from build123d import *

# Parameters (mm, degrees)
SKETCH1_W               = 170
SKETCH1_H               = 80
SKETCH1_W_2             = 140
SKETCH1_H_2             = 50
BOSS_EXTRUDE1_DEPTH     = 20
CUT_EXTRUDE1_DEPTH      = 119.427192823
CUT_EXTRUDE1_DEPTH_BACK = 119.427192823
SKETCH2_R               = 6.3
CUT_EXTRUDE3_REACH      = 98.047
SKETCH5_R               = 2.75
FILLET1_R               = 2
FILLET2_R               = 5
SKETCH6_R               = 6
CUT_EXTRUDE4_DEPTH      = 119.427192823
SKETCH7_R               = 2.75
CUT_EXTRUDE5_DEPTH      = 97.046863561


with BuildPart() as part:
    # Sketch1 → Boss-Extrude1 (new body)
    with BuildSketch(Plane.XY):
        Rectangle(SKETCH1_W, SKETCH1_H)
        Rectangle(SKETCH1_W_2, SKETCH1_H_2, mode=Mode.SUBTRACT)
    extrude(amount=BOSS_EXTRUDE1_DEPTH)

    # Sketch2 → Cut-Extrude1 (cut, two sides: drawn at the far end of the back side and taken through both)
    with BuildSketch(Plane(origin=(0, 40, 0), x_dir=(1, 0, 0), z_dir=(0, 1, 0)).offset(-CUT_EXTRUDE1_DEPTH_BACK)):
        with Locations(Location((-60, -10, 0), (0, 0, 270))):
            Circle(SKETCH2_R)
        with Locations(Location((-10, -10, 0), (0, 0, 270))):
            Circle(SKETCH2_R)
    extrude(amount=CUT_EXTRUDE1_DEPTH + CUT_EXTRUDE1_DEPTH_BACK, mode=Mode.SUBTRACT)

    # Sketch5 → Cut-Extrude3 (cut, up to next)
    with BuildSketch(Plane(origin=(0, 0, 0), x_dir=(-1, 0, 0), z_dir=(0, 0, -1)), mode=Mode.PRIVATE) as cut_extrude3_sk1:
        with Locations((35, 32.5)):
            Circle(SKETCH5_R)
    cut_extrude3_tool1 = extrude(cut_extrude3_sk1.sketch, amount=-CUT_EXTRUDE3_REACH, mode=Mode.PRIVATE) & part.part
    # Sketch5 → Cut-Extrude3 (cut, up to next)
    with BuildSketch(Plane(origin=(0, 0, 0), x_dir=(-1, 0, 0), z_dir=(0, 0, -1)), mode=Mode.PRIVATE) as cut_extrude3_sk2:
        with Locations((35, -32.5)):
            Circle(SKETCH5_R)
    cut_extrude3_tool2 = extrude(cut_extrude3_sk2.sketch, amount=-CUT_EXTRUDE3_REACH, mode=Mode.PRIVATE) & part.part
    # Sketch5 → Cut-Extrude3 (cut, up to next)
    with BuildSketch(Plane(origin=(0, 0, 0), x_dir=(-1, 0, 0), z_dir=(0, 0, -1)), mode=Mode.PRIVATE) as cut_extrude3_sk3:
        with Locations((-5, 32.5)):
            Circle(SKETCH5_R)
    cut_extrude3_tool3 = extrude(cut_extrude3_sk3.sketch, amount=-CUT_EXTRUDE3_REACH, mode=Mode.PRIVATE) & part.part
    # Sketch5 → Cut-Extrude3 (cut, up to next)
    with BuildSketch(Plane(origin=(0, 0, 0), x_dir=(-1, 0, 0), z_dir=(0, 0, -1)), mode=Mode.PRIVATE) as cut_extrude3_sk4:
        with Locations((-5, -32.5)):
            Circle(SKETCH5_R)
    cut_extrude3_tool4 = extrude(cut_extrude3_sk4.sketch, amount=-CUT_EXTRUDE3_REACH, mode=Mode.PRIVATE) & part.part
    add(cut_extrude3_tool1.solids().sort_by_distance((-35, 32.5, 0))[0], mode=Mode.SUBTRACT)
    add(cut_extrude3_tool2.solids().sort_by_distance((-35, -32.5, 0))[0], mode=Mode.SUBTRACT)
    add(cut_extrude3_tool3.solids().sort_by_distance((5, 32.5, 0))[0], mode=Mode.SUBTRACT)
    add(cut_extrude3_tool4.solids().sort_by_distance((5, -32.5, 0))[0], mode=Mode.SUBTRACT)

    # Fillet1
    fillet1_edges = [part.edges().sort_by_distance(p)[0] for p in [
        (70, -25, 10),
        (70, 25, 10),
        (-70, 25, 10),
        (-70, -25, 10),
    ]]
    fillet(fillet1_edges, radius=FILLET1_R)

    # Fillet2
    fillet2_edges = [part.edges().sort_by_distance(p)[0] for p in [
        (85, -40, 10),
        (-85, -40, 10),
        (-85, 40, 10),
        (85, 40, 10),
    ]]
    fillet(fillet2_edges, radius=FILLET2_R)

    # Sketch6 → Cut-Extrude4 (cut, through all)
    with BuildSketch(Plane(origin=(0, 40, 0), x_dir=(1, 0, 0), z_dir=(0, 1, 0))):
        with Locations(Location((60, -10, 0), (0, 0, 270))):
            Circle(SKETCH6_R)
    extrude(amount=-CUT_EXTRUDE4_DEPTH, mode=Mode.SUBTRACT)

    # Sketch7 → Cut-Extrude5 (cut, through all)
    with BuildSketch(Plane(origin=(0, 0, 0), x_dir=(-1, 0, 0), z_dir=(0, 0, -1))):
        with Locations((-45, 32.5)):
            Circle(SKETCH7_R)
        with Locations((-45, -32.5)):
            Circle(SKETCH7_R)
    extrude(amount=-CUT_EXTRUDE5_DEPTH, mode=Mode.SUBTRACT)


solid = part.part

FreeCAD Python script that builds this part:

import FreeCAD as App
import Part
import Sketcher
Q = App.Units.Quantity


def edges_at(feature, points):
    """Names of the edges that pass closest to the given points."""
    edges = feature.Shape.Edges
    near = lambda p: min(range(len(edges)), key=lambda i: edges[i].distToShape(Part.Vertex(*p))[0])
    return sorted({f"Edge{near(p) + 1}" for p in points})

doc = App.newDocument("Part")
params = doc.addObject("Spreadsheet::Sheet", "Params")
for row, (alias, value) in enumerate([
    ("sketch1_width", "170 mm"),
    ("sketch1_width2", "140 mm"),
    ("sketch1_height", "80 mm"),
    ("sketch1_height2", "50 mm"),
    ("pad1_length", "20 mm"),
    ("sketch2_diameter", "12.6 mm"),
    ("sketch3_diameter", "5.5 mm"),
    ("sketch4_diameter", "5.5 mm"),
    ("sketch5_diameter", "5.5 mm"),
    ("sketch6_diameter", "5.5 mm"),
    ("fillet_radius", "2 mm"),
    ("fillet2_radius", "5 mm"),
    ("sketch7_diameter", "12 mm"),
    ("sketch8_diameter", "5.5 mm"),
], start=1):
    params.set(f"A{row}", alias)
    params.set(f"B{row}", "=" + value)
    params.setAlias(f"B{row}", alias)

body = doc.addObject("PartDesign::Body", "Body")

sketch1 = body.newObject("Sketcher::SketchObject", "Sketch")
sketch1.AttachmentSupport = (doc.getObject("XY_Plane"), [""])
sketch1.MapMode = "FlatFace"
sketch1.addGeometry([
    Part.LineSegment(App.Vector(-85, 40, 0), App.Vector(-85, -40, 0)),
    Part.LineSegment(App.Vector(-85, -40, 0), App.Vector(85, -40, 0)),
    Part.LineSegment(App.Vector(85, -40, 0), App.Vector(85, 40, 0)),
    Part.LineSegment(App.Vector(85, 40, 0), App.Vector(-85, 40, 0)),
    Part.LineSegment(App.Vector(70, -25, 0), App.Vector(-70, -25, 0)),
    Part.LineSegment(App.Vector(-70, -25, 0), App.Vector(-70, 25, 0)),
    Part.LineSegment(App.Vector(-70, 25, 0), App.Vector(70, 25, 0)),
    Part.LineSegment(App.Vector(70, 25, 0), App.Vector(70, -25, 0)),
], False)
sketch1.addConstraint([
    Sketcher.Constraint("Coincident", 0, 2, 1, 1),
    Sketcher.Constraint("Coincident", 1, 2, 2, 1),
    Sketcher.Constraint("Coincident", 2, 2, 3, 1),
    Sketcher.Constraint("Coincident", 3, 2, 0, 1),
    Sketcher.Constraint("Coincident", 4, 2, 5, 1),
    Sketcher.Constraint("Coincident", 5, 2, 6, 1),
    Sketcher.Constraint("Coincident", 6, 2, 7, 1),
    Sketcher.Constraint("Coincident", 7, 2, 4, 1),
    Sketcher.Constraint("Vertical", 0),
    Sketcher.Constraint("Horizontal", 1),
    Sketcher.Constraint("Vertical", 2),
    Sketcher.Constraint("Horizontal", 3),
    Sketcher.Constraint("Horizontal", 4),
    Sketcher.Constraint("Vertical", 5),
    Sketcher.Constraint("Horizontal", 6),
    Sketcher.Constraint("Vertical", 7),
    Sketcher.Constraint("Symmetric", 0, 2, 2, 2, -1, 1),
    Sketcher.Constraint("Symmetric", 4, 2, 6, 2, -1, 1),
    Sketcher.Constraint("DistanceX", 1, 1, 1, 2, Q("170 mm")),
    Sketcher.Constraint("DistanceX", 4, 2, 4, 1, Q("140 mm")),
    Sketcher.Constraint("DistanceY", 0, 2, 0, 1, Q("80 mm")),
    Sketcher.Constraint("DistanceY", 5, 1, 5, 2, Q("50 mm")),
])
sketch1.setExpression("Constraints[18]", "Params.sketch1_width")
sketch1.setExpression("Constraints[19]", "Params.sketch1_width2")
sketch1.setExpression("Constraints[20]", "Params.sketch1_height")
sketch1.setExpression("Constraints[21]", "Params.sketch1_height2")
pad1 = body.newObject("PartDesign::Pad", "Pad")
pad1.Profile = sketch1
pad1.setExpression("Length", "Params.pad1_length")

sketch2 = body.newObject("Sketcher::SketchObject", "Sketch001")
sketch2.AttachmentSupport = (doc.getObject("XZ_Plane"), [""])
sketch2.MapMode = "FlatFace"
sketch2.AttachmentOffset = App.Placement(App.Vector(0, 0, -40), App.Rotation())
sketch2.addGeometry([
    Part.Circle(App.Vector(-60, 10, 0), App.Vector(0, 0, 1), 6),
    Part.Circle(App.Vector(-10, 10, 0), App.Vector(0, 0, 1), 6),
], False)
sketch2.addConstraint([
    Sketcher.Constraint("Equal", 0, 1),
    Sketcher.Constraint("Horizontal", 0, 3, 1, 3),
    Sketcher.Constraint("Diameter", 0, Q("12.6 mm")),
    Sketcher.Constraint("DistanceX", 0, 3, -1, 1, Q("60 mm")),
    Sketcher.Constraint("DistanceY", -1, 1, 0, 3, Q("10 mm")),
    Sketcher.Constraint("DistanceX", 1, 3, -1, 1, Q("10 mm")),
])
sketch2.setExpression("Constraints[2]", "Params.sketch2_diameter")
pocket1 = body.newObject("PartDesign::Pocket", "Pocket")
pocket1.Profile = sketch2
pocket1.Type = "ThroughAll"
pocket1.Midplane = True

sketch3 = body.newObject("Sketcher::SketchObject", "Sketch002")
sketch3.AttachmentSupport = (doc.getObject("XY_Plane"), [""])
sketch3.MapMode = "FlatFace"
sketch3.addGeometry(Part.Circle(App.Vector(-35, 32.5, 0), App.Vector(0, 0, 1), 2.8), False)
sketch3.addConstraint([
    Sketcher.Constraint("Diameter", 0, Q("5.5 mm")),
    Sketcher.Constraint("DistanceX", 0, 3, -1, 1, Q("35 mm")),
    Sketcher.Constraint("DistanceY", -1, 1, 0, 3, Q("32.5 mm")),
])
sketch3.setExpression("Constraints[0]", "Params.sketch3_diameter")
pocket2 = body.newObject("PartDesign::Pocket", "Pocket001")
pocket2.Profile = sketch3
pocket2.Type = "UpToFirst"
pocket2.Reversed = True

sketch4 = body.newObject("Sketcher::SketchObject", "Sketch003")
sketch4.AttachmentSupport = (doc.getObject("XY_Plane"), [""])
sketch4.MapMode = "FlatFace"
sketch4.addGeometry(Part.Circle(App.Vector(-35, -32.5, 0), App.Vector(0, 0, 1), 2.8), False)
sketch4.addConstraint([
    Sketcher.Constraint("Diameter", 0, Q("5.5 mm")),
    Sketcher.Constraint("DistanceX", 0, 3, -1, 1, Q("35 mm")),
    Sketcher.Constraint("DistanceY", 0, 3, -1, 1, Q("32.5 mm")),
])
sketch4.setExpression("Constraints[0]", "Params.sketch4_diameter")
pocket3 = body.newObject("PartDesign::Pocket", "Pocket002")
pocket3.Profile = sketch4
pocket3.Type = "UpToFirst"
pocket3.Reversed = True

sketch5 = body.newObject("Sketcher::SketchObject", "Sketch004")
sketch5.AttachmentSupport = (doc.getObject("XY_Plane"), [""])
sketch5.MapMode = "FlatFace"
sketch5.addGeometry(Part.Circle(App.Vector(5, 32.5, 0), App.Vector(0, 0, 1), 2.8), False)
sketch5.addConstraint([
    Sketcher.Constraint("Diameter", 0, Q("5.5 mm")),
    Sketcher.Constraint("DistanceX", -1, 1, 0, 3, Q("5 mm")),
    Sketcher.Constraint("DistanceY", -1, 1, 0, 3, Q("32.5 mm")),
])
sketch5.setExpression("Constraints[0]", "Params.sketch5_diameter")
pocket4 = body.newObject("PartDesign::Pocket", "Pocket003")
pocket4.Profile = sketch5
pocket4.Type = "UpToFirst"
pocket4.Reversed = True

sketch6 = body.newObject("Sketcher::SketchObject", "Sketch005")
sketch6.AttachmentSupport = (doc.getObject("XY_Plane"), [""])
sketch6.MapMode = "FlatFace"
sketch6.addGeometry(Part.Circle(App.Vector(5, -32.5, 0), App.Vector(0, 0, 1), 2.8), False)
sketch6.addConstraint([
    Sketcher.Constraint("Diameter", 0, Q("5.5 mm")),
    Sketcher.Constraint("DistanceX", -1, 1, 0, 3, Q("5 mm")),
    Sketcher.Constraint("DistanceY", 0, 3, -1, 1, Q("32.5 mm")),
])
sketch6.setExpression("Constraints[0]", "Params.sketch6_diameter")
pocket5 = body.newObject("PartDesign::Pocket", "Pocket004")
pocket5.Profile = sketch6
pocket5.Type = "UpToFirst"
pocket5.Reversed = True
doc.recompute()

fillet = body.newObject("PartDesign::Fillet", "Fillet")
fillet.Base = (pocket5, edges_at(pocket5, [
    (70, -25, 10),
    (70, 25, 10),
    (-70, 25, 10),
    (-70, -25, 10),
]))
fillet.setExpression("Radius", "Params.fillet_radius")
doc.recompute()

fillet2 = body.newObject("PartDesign::Fillet", "Fillet001")
fillet2.Base = (fillet, edges_at(fillet, [
    (85, -40, 10),
    (-85, -40, 10),
    (-85, 40, 10),
    (85, 40, 10),
]))
fillet2.setExpression("Radius", "Params.fillet2_radius")

sketch7 = body.newObject("Sketcher::SketchObject", "Sketch006")
sketch7.AttachmentSupport = (doc.getObject("XZ_Plane"), [""])
sketch7.MapMode = "FlatFace"
sketch7.AttachmentOffset = App.Placement(App.Vector(0, 0, -40), App.Rotation())
sketch7.addGeometry(Part.Circle(App.Vector(60, 10, 0), App.Vector(0, 0, 1), 6), False)
sketch7.addConstraint([
    Sketcher.Constraint("Diameter", 0, Q("12 mm")),
    Sketcher.Constraint("DistanceX", -1, 1, 0, 3, Q("60 mm")),
    Sketcher.Constraint("DistanceY", -1, 1, 0, 3, Q("10 mm")),
])
sketch7.setExpression("Constraints[0]", "Params.sketch7_diameter")
pocket6 = body.newObject("PartDesign::Pocket", "Pocket005")
pocket6.Profile = sketch7
pocket6.Type = "ThroughAll"
pocket6.Reversed = True

sketch8 = body.newObject("Sketcher::SketchObject", "Sketch007")
sketch8.AttachmentSupport = (doc.getObject("XY_Plane"), [""])
sketch8.MapMode = "FlatFace"
sketch8.addGeometry([
    Part.Circle(App.Vector(45, 32.5, 0), App.Vector(0, 0, 1), 2.8),
    Part.Circle(App.Vector(45, -32.5, 0), App.Vector(0, 0, 1), 2.8),
], False)
sketch8.addConstraint([
    Sketcher.Constraint("Equal", 0, 1),
    Sketcher.Constraint("Symmetric", 0, 3, 1, 3, -1),
    Sketcher.Constraint("Diameter", 0, Q("5.5 mm")),
    Sketcher.Constraint("DistanceX", -1, 1, 0, 3, Q("45 mm")),
    Sketcher.Constraint("DistanceY", 1, 3, 0, 3, Q("65 mm")),
])
sketch8.setExpression("Constraints[2]", "Params.sketch8_diameter")
pocket7 = body.newObject("PartDesign::Pocket", "Pocket006")
pocket7.Profile = sketch8
pocket7.Type = "ThroughAll"
pocket7.Reversed = True

doc.recompute()
